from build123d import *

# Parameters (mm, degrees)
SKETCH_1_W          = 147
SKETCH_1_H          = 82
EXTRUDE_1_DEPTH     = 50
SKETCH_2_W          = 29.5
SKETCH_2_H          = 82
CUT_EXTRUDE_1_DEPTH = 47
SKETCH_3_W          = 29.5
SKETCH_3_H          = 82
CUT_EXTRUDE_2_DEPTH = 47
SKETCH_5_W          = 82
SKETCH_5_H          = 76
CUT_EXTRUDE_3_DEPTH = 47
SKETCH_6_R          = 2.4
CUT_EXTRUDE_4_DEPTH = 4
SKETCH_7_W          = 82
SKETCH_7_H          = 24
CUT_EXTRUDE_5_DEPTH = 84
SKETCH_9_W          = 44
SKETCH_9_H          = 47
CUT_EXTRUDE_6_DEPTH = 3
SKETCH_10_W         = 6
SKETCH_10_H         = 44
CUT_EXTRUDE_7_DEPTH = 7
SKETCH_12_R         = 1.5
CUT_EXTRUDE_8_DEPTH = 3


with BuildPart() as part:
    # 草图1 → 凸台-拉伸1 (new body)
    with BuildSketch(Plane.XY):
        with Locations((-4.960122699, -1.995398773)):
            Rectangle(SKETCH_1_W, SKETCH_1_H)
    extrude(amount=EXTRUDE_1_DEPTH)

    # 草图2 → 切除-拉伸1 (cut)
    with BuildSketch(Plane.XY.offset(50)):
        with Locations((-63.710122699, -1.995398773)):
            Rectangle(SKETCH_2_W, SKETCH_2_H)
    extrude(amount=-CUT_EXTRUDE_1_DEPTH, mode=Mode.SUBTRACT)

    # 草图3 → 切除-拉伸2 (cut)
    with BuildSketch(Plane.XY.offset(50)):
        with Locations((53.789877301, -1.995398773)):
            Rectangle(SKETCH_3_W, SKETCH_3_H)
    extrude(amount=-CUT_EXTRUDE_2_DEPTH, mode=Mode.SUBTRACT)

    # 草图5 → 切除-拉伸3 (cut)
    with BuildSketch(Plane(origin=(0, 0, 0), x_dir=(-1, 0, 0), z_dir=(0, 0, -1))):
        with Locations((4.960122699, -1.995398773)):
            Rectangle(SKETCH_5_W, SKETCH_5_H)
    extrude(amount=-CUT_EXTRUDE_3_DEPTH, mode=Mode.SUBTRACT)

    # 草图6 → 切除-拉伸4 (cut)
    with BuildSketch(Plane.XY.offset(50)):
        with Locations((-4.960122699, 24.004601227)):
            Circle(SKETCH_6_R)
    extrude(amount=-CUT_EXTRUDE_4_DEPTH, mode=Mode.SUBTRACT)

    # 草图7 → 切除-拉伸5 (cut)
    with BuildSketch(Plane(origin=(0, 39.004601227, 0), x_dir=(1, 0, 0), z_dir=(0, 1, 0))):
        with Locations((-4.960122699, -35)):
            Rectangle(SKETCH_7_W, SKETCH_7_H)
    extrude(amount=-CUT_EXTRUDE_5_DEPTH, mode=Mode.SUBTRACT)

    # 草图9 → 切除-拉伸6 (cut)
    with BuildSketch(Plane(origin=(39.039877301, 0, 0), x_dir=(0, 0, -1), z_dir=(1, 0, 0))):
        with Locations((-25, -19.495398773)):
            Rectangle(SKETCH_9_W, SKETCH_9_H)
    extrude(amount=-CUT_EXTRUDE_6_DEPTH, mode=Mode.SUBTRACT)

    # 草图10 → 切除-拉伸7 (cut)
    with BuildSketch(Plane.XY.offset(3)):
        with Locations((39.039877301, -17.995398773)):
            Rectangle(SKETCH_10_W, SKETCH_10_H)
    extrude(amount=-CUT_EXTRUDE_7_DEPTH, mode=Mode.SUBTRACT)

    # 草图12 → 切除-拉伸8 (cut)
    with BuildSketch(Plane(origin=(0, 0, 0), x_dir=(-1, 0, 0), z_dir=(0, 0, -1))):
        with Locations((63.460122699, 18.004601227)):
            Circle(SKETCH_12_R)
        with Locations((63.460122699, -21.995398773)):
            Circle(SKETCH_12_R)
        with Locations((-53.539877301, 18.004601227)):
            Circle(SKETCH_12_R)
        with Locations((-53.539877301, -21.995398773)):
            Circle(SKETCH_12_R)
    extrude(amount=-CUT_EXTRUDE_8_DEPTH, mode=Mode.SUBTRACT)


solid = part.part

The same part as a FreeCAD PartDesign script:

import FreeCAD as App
import Part
import Sketcher

V = App.Vector

doc = App.newDocument("Part")
body = doc.addObject("PartDesign::Body", "Body")

# Sketch on XY plane
sketch1 = body.newObject("Sketcher::SketchObject", "Sketch")
sketch1.AttachmentSupport = (doc.getObject("XY_Plane"), [""])
sketch1.MapMode = "FlatFace"
sketch1.addGeometry([
    Part.LineSegment(V(-78, 39, 0), V(-78, -43, 0)),
    Part.LineSegment(V(-78, -43, 0), V(69, -43, 0)),
    Part.LineSegment(V(69, -43, 0), V(69, 39, 0)),
    Part.LineSegment(V(69, 39, 0), V(-78, 39, 0)),
], False)
sketch1.addConstraint([
    Sketcher.Constraint("Coincident", 0, 2, 1, 1),
    Sketcher.Constraint("Coincident", 1, 2, 2, 1),
    Sketcher.Constraint("Coincident", 2, 2, 3, 1),
    Sketcher.Constraint("Coincident", 3, 2, 0, 1),
    Sketcher.Constraint("Vertical", 0),
    Sketcher.Constraint("Horizontal", 1),
    Sketcher.Constraint("Vertical", 2),
    Sketcher.Constraint("Horizontal", 3),
    Sketcher.Constraint("DistanceX", 1, 1, 1, 2, 147.0),
    Sketcher.Constraint("DistanceY", 0, 2, 0, 1, 82.0),
    Sketcher.Constraint("DistanceY", 0, 2, -1, 1, 42.995399),
    Sketcher.Constraint("DistanceX", 0, 2, -1, 1, 78.460123),
])
pad1 = body.newObject("PartDesign::Pad", "Pad")
pad1.Profile = sketch1
pad1.Length = 50

# Sketch on XY plane
sketch2 = body.newObject("Sketcher::SketchObject", "Sketch001")
sketch2.AttachmentSupport = (doc.getObject("XY_Plane"), [""])
sketch2.MapMode = "FlatFace"
sketch2.AttachmentOffset = App.Placement(V(0, 0, 50), App.Rotation())
sketch2.addGeometry([
    Part.LineSegment(V(-78, 39, 0), V(-78, -43, 0)),
    Part.LineSegment(V(-78, -43, 0), V(-49, -43, 0)),
    Part.LineSegment(V(-49, -43, 0), V(-49, 39, 0)),
    Part.LineSegment(V(-49, 39, 0), V(-78, 39, 0)),
], False)
sketch2.addConstraint([
    Sketcher.Constraint("Coincident", 0, 2, 1, 1),
    Sketcher.Constraint("Coincident", 1, 2, 2, 1),
    Sketcher.Constraint("Coincident", 2, 2, 3, 1),
    Sketcher.Constraint("Coincident", 3, 2, 0, 1),
    Sketcher.Constraint("Vertical", 0),
    Sketcher.Constraint("Horizontal", 1),
    Sketcher.Constraint("Vertical", 2),
    Sketcher.Constraint("Horizontal", 3),
    Sketcher.Constraint("DistanceY", 0, 2, 0, 1, 82.0),
    Sketcher.Constraint("DistanceX", 1, 1, 1, 2, 29.5),
    Sketcher.Constraint("DistanceY", 0, 2, -1, 1, 42.995399),
    Sketcher.Constraint("DistanceX", 0, 2, -1, 1, 78.460123),
])
pocket1 = body.newObject("PartDesign::Pocket", "Pocket")
pocket1.Profile = sketch2
pocket1.Length = 47

# Sketch on XY plane
sketch3 = body.newObject("Sketcher::SketchObject", "Sketch002")
sketch3.AttachmentSupport = (doc.getObject("XY_Plane"), [""])
sketch3.MapMode = "FlatFace"
sketch3.AttachmentOffset = App.Placement(V(0, 0, 50), App.Rotation())
sketch3.addGeometry([
    Part.LineSegment(V(39, 39, 0), V(39, -43, 0)),
    Part.LineSegment(V(39, -43, 0), V(69, -43, 0)),
    Part.LineSegment(V(69, -43, 0), V(69, 39, 0)),
    Part.LineSegment(V(69, 39, 0), V(39, 39, 0)),
], False)
sketch3.addConstraint([
    Sketcher.Constraint("Coincident", 0, 2, 1, 1),
    Sketcher.Constraint("Coincident", 1, 2, 2, 1),
    Sketcher.Constraint("Coincident", 2, 2, 3, 1),
    Sketcher.Constraint("Coincident", 3, 2, 0, 1),
    Sketcher.Constraint("Vertical", 0),
    Sketcher.Constraint("Horizontal", 1),
    Sketcher.Constraint("Vertical", 2),
    Sketcher.Constraint("Horizontal", 3),
    Sketcher.Constraint("DistanceY", 0, 2, 0, 1, 82.0),
    Sketcher.Constraint("DistanceX", 1, 1, 1, 2, 29.5),
    Sketcher.Constraint("DistanceY", 0, 2, -1, 1, 42.995399),
    Sketcher.Constraint("DistanceX", -1, 1, 0, 2, 39.039877),
])
pocket2 = body.newObject("PartDesign::Pocket", "Pocket001")
pocket2.Profile = sketch3
pocket2.Length = 47

# Sketch on XY plane
sketch4 = body.newObject("Sketcher::SketchObject", "Sketch003")
sketch4.AttachmentSupport = (doc.getObject("XY_Plane"), [""])
sketch4.MapMode = "FlatFace"
sketch4.addGeometry([
    Part.LineSegment(V(36, 36, 0), V(36, -40, 0)),
    Part.LineSegment(V(36, -40, 0), V(-46, -40, 0)),
    Part.LineSegment(V(-46, -40, 0), V(-46, 36, 0)),
    Part.LineSegment(V(-46, 36, 0), V(36, 36, 0)),
], False)
sketch4.addConstraint([
    Sketcher.Constraint("Coincident", 0, 2, 1, 1),
    Sketcher.Constraint("Coincident", 1, 2, 2, 1),
    Sketcher.Constraint("Coincident", 2, 2, 3, 1),
    Sketcher.Constraint("Coincident", 3, 2, 0, 1),
    Sketcher.Constraint("Vertical", 0),
    Sketcher.Constraint("Horizontal", 1),
    Sketcher.Constraint("Vertical", 2),
    Sketcher.Constraint("Horizontal", 3),
    Sketcher.Constraint("DistanceX", 1, 2, 1, 1, 82.0),
    Sketcher.Constraint("DistanceY", 0, 2, 0, 1, 76.0),
    Sketcher.Constraint("DistanceY", 0, 2, -1, 1, 39.995399),
    Sketcher.Constraint("DistanceX", -1, 1, 0, 2, 36.039877),
])
pocket3 = body.newObject("PartDesign::Pocket", "Pocket002")
pocket3.Profile = sketch4
pocket3.Length = 47
pocket3.Reversed = True

# Sketch on XY plane
sketch5 = body.newObject("Sketcher::SketchObject", "Sketch004")
sketch5.AttachmentSupport = (doc.getObject("XY_Plane"), [""])
sketch5.MapMode = "FlatFace"
sketch5.AttachmentOffset = App.Placement(V(0, 0, 50), App.Rotation())
sketch5.addGeometry(Part.Circle(V(-5, 24, 0), V(0, 0, 1), 2.4), False)
sketch5.addConstraint([
    Sketcher.Constraint("Diameter", 0, 4.8),
    Sketcher.Constraint("DistanceY", -1, 1, 0, 3, 24.004601),
    Sketcher.Constraint("DistanceX", 0, 3, -1, 1, 4.960123),
])
pocket4 = body.newObject("PartDesign::Pocket", "Pocket003")
pocket4.Profile = sketch5
pocket4.Length = 4

# Sketch on XZ plane
sketch6 = body.newObject("Sketcher::SketchObject", "Sketch005")
sketch6.AttachmentSupport = (doc.getObject("XZ_Plane"), [""])
sketch6.MapMode = "FlatFace"
sketch6.AttachmentOffset = App.Placement(V(0, 0, -39.004601), App.Rotation())
sketch6.addGeometry([
    Part.LineSegment(V(-46, 23, 0), V(-46, 47, 0)),
    Part.LineSegment(V(-46, 47, 0), V(36, 47, 0)),
    Part.LineSegment(V(36, 47, 0), V(36, 23, 0)),
    Part.LineSegment(V(36, 23, 0), V(-46, 23, 0)),
], False)
sketch6.addConstraint([
    Sketcher.Constraint("Coincident", 0, 2, 1, 1),
    Sketcher.Constraint("Coincident", 1, 2, 2, 1),
    Sketcher.Constraint("Coincident", 2, 2, 3, 1),
    Sketcher.Constraint("Coincident", 3, 2, 0, 1),
    Sketcher.Constraint("Vertical", 0),
    Sketcher.Constraint("Horizontal", 1),
    Sketcher.Constraint("Vertical", 2),
    Sketcher.Constraint("Horizontal", 3),
    Sketcher.Constraint("DistanceX", 1, 1, 1, 2, 82.0),
    Sketcher.Constraint("DistanceY", 0, 1, 0, 2, 24.0),
    Sketcher.Constraint("DistanceY", -1, 1, 0, 2, 47.0),
    Sketcher.Constraint("DistanceX", 0, 2, -1, 1, 45.960123),
])
pocket5 = body.newObject("PartDesign::Pocket", "Pocket004")
pocket5.Profile = sketch6
pocket5.Length = 84
pocket5.Reversed = True

# Sketch on YZ plane
sketch7 = body.newObject("Sketcher::SketchObject", "Sketch006")
sketch7.AttachmentSupport = (doc.getObject("YZ_Plane"), [""])
sketch7.MapMode = "FlatFace"
sketch7.AttachmentOffset = App.Placement(V(0, 0, 39.039877), App.Rotation())
sketch7.addGeometry([
    Part.LineSegment(V(4, 47, 0), V(-43, 47, 0)),
    Part.LineSegment(V(-43, 47, 0), V(-43, 3, 0)),
    Part.LineSegment(V(-43, 3, 0), V(4, 3, 0)),
    Part.LineSegment(V(4, 3, 0), V(4, 47, 0)),
], False)
sketch7.addConstraint([
    Sketcher.Constraint("Coincident", 0, 2, 1, 1),
    Sketcher.Constraint("Coincident", 1, 2, 2, 1),
    Sketcher.Constraint("Coincident", 2, 2, 3, 1),
    Sketcher.Constraint("Coincident", 3, 2, 0, 1),
    Sketcher.Constraint("Horizontal", 0),
    Sketcher.Constraint("Vertical", 1),
    Sketcher.Constraint("Horizontal", 2),
    Sketcher.Constraint("Vertical", 3),
    Sketcher.Constraint("DistanceX", 0, 2, 0, 1, 47.0),
    Sketcher.Constraint("DistanceY", 1, 2, 1, 1, 44.0),
    Sketcher.Constraint("DistanceY", -1, 1, 0, 2, 47.0),
    Sketcher.Constraint("DistanceX", 0, 2, -1, 1, 42.995399),
])
pocket6 = body.newObject("PartDesign::Pocket", "Pocket005")
pocket6.Profile = sketch7
pocket6.Length = 3

# Sketch on XY plane
sketch8 = body.newObject("Sketcher::SketchObject", "Sketch007")
sketch8.AttachmentSupport = (doc.getObject("XY_Plane"), [""])
sketch8.MapMode = "FlatFace"
sketch8.AttachmentOffset = App.Placement(V(0, 0, 3), App.Rotation())
sketch8.addGeometry([
    Part.LineSegment(V(36, 4, 0), V(36, -40, 0)),
    Part.LineSegment(V(36, -40, 0), V(42, -40, 0)),
    Part.LineSegment(V(42, -40, 0), V(42, 4, 0)),
    Part.LineSegment(V(42, 4, 0), V(36, 4, 0)),
], False)
sketch8.addConstraint([
    Sketcher.Constraint("Coincident", 0, 2, 1, 1),
    Sketcher.Constraint("Coincident", 1, 2, 2, 1),
    Sketcher.Constraint("Coincident", 2, 2, 3, 1),
    Sketcher.Constraint("Coincident", 3, 2, 0, 1),
    Sketcher.Constraint("Vertical", 0),
    Sketcher.Constraint("Horizontal", 1),
    Sketcher.Constraint("Vertical", 2),
    Sketcher.Constraint("Horizontal", 3),
    Sketcher.Constraint("DistanceX", 1, 1, 1, 2, 6.0),
    Sketcher.Constraint("DistanceY", 0, 2, 0, 1, 44.0),
    Sketcher.Constraint("DistanceY", 0, 2, -1, 1, 39.995399),
    Sketcher.Constraint("DistanceX", -1, 1, 0, 2, 36.039877),
])
pocket7 = body.newObject("PartDesign::Pocket", "Pocket006")
pocket7.Profile = sketch8
pocket7.Length = 7

# Sketch on XY plane
sketch9 = body.newObject("Sketcher::SketchObject", "Sketch008")
sketch9.AttachmentSupport = (doc.getObject("XY_Plane"), [""])
sketch9.MapMode = "FlatFace"
sketch9.addGeometry([
    Part.Circle(V(-63.5, 18, 0), V(0, 0, 1), 1.5),
    Part.Circle(V(-63.5, -22, 0), V(0, 0, 1), 1.5),
    Part.Circle(V(53.5, 18, 0), V(0, 0, 1), 1.5),
    Part.Circle(V(53.5, -22, 0), V(0, 0, 1), 1.5),
], False)
sketch9.addConstraint([
    Sketcher.Constraint("Equal", 0, 1),
    Sketcher.Constraint("Equal", 1, 2),
    Sketcher.Constraint("Equal", 2, 3),
    Sketcher.Constraint("Horizontal", 0, 3, 2, 3),
    Sketcher.Constraint("Horizontal", 1, 3, 3, 3),
    Sketcher.Constraint("Vertical", 0, 3, 1, 3),
    Sketcher.Constraint("Vertical", 2, 3, 3, 3),
    Sketcher.Constraint("Diameter", 0, 3.0),
    Sketcher.Constraint("DistanceY", 1, 3, 0, 3, 40.0),
    Sketcher.Constraint("DistanceX", 0, 3, 2, 3, 117.0),
    Sketcher.Constraint("DistanceY", -1, 1, 0, 3, 18.004601),
    Sketcher.Constraint("DistanceX", 0, 3, -1, 1, 63.460123),
])
pocket8 = body.newObject("PartDesign::Pocket", "Pocket007")
pocket8.Profile = sketch9
pocket8.Length = 3
pocket8.Reversed = True

doc.recompute()
